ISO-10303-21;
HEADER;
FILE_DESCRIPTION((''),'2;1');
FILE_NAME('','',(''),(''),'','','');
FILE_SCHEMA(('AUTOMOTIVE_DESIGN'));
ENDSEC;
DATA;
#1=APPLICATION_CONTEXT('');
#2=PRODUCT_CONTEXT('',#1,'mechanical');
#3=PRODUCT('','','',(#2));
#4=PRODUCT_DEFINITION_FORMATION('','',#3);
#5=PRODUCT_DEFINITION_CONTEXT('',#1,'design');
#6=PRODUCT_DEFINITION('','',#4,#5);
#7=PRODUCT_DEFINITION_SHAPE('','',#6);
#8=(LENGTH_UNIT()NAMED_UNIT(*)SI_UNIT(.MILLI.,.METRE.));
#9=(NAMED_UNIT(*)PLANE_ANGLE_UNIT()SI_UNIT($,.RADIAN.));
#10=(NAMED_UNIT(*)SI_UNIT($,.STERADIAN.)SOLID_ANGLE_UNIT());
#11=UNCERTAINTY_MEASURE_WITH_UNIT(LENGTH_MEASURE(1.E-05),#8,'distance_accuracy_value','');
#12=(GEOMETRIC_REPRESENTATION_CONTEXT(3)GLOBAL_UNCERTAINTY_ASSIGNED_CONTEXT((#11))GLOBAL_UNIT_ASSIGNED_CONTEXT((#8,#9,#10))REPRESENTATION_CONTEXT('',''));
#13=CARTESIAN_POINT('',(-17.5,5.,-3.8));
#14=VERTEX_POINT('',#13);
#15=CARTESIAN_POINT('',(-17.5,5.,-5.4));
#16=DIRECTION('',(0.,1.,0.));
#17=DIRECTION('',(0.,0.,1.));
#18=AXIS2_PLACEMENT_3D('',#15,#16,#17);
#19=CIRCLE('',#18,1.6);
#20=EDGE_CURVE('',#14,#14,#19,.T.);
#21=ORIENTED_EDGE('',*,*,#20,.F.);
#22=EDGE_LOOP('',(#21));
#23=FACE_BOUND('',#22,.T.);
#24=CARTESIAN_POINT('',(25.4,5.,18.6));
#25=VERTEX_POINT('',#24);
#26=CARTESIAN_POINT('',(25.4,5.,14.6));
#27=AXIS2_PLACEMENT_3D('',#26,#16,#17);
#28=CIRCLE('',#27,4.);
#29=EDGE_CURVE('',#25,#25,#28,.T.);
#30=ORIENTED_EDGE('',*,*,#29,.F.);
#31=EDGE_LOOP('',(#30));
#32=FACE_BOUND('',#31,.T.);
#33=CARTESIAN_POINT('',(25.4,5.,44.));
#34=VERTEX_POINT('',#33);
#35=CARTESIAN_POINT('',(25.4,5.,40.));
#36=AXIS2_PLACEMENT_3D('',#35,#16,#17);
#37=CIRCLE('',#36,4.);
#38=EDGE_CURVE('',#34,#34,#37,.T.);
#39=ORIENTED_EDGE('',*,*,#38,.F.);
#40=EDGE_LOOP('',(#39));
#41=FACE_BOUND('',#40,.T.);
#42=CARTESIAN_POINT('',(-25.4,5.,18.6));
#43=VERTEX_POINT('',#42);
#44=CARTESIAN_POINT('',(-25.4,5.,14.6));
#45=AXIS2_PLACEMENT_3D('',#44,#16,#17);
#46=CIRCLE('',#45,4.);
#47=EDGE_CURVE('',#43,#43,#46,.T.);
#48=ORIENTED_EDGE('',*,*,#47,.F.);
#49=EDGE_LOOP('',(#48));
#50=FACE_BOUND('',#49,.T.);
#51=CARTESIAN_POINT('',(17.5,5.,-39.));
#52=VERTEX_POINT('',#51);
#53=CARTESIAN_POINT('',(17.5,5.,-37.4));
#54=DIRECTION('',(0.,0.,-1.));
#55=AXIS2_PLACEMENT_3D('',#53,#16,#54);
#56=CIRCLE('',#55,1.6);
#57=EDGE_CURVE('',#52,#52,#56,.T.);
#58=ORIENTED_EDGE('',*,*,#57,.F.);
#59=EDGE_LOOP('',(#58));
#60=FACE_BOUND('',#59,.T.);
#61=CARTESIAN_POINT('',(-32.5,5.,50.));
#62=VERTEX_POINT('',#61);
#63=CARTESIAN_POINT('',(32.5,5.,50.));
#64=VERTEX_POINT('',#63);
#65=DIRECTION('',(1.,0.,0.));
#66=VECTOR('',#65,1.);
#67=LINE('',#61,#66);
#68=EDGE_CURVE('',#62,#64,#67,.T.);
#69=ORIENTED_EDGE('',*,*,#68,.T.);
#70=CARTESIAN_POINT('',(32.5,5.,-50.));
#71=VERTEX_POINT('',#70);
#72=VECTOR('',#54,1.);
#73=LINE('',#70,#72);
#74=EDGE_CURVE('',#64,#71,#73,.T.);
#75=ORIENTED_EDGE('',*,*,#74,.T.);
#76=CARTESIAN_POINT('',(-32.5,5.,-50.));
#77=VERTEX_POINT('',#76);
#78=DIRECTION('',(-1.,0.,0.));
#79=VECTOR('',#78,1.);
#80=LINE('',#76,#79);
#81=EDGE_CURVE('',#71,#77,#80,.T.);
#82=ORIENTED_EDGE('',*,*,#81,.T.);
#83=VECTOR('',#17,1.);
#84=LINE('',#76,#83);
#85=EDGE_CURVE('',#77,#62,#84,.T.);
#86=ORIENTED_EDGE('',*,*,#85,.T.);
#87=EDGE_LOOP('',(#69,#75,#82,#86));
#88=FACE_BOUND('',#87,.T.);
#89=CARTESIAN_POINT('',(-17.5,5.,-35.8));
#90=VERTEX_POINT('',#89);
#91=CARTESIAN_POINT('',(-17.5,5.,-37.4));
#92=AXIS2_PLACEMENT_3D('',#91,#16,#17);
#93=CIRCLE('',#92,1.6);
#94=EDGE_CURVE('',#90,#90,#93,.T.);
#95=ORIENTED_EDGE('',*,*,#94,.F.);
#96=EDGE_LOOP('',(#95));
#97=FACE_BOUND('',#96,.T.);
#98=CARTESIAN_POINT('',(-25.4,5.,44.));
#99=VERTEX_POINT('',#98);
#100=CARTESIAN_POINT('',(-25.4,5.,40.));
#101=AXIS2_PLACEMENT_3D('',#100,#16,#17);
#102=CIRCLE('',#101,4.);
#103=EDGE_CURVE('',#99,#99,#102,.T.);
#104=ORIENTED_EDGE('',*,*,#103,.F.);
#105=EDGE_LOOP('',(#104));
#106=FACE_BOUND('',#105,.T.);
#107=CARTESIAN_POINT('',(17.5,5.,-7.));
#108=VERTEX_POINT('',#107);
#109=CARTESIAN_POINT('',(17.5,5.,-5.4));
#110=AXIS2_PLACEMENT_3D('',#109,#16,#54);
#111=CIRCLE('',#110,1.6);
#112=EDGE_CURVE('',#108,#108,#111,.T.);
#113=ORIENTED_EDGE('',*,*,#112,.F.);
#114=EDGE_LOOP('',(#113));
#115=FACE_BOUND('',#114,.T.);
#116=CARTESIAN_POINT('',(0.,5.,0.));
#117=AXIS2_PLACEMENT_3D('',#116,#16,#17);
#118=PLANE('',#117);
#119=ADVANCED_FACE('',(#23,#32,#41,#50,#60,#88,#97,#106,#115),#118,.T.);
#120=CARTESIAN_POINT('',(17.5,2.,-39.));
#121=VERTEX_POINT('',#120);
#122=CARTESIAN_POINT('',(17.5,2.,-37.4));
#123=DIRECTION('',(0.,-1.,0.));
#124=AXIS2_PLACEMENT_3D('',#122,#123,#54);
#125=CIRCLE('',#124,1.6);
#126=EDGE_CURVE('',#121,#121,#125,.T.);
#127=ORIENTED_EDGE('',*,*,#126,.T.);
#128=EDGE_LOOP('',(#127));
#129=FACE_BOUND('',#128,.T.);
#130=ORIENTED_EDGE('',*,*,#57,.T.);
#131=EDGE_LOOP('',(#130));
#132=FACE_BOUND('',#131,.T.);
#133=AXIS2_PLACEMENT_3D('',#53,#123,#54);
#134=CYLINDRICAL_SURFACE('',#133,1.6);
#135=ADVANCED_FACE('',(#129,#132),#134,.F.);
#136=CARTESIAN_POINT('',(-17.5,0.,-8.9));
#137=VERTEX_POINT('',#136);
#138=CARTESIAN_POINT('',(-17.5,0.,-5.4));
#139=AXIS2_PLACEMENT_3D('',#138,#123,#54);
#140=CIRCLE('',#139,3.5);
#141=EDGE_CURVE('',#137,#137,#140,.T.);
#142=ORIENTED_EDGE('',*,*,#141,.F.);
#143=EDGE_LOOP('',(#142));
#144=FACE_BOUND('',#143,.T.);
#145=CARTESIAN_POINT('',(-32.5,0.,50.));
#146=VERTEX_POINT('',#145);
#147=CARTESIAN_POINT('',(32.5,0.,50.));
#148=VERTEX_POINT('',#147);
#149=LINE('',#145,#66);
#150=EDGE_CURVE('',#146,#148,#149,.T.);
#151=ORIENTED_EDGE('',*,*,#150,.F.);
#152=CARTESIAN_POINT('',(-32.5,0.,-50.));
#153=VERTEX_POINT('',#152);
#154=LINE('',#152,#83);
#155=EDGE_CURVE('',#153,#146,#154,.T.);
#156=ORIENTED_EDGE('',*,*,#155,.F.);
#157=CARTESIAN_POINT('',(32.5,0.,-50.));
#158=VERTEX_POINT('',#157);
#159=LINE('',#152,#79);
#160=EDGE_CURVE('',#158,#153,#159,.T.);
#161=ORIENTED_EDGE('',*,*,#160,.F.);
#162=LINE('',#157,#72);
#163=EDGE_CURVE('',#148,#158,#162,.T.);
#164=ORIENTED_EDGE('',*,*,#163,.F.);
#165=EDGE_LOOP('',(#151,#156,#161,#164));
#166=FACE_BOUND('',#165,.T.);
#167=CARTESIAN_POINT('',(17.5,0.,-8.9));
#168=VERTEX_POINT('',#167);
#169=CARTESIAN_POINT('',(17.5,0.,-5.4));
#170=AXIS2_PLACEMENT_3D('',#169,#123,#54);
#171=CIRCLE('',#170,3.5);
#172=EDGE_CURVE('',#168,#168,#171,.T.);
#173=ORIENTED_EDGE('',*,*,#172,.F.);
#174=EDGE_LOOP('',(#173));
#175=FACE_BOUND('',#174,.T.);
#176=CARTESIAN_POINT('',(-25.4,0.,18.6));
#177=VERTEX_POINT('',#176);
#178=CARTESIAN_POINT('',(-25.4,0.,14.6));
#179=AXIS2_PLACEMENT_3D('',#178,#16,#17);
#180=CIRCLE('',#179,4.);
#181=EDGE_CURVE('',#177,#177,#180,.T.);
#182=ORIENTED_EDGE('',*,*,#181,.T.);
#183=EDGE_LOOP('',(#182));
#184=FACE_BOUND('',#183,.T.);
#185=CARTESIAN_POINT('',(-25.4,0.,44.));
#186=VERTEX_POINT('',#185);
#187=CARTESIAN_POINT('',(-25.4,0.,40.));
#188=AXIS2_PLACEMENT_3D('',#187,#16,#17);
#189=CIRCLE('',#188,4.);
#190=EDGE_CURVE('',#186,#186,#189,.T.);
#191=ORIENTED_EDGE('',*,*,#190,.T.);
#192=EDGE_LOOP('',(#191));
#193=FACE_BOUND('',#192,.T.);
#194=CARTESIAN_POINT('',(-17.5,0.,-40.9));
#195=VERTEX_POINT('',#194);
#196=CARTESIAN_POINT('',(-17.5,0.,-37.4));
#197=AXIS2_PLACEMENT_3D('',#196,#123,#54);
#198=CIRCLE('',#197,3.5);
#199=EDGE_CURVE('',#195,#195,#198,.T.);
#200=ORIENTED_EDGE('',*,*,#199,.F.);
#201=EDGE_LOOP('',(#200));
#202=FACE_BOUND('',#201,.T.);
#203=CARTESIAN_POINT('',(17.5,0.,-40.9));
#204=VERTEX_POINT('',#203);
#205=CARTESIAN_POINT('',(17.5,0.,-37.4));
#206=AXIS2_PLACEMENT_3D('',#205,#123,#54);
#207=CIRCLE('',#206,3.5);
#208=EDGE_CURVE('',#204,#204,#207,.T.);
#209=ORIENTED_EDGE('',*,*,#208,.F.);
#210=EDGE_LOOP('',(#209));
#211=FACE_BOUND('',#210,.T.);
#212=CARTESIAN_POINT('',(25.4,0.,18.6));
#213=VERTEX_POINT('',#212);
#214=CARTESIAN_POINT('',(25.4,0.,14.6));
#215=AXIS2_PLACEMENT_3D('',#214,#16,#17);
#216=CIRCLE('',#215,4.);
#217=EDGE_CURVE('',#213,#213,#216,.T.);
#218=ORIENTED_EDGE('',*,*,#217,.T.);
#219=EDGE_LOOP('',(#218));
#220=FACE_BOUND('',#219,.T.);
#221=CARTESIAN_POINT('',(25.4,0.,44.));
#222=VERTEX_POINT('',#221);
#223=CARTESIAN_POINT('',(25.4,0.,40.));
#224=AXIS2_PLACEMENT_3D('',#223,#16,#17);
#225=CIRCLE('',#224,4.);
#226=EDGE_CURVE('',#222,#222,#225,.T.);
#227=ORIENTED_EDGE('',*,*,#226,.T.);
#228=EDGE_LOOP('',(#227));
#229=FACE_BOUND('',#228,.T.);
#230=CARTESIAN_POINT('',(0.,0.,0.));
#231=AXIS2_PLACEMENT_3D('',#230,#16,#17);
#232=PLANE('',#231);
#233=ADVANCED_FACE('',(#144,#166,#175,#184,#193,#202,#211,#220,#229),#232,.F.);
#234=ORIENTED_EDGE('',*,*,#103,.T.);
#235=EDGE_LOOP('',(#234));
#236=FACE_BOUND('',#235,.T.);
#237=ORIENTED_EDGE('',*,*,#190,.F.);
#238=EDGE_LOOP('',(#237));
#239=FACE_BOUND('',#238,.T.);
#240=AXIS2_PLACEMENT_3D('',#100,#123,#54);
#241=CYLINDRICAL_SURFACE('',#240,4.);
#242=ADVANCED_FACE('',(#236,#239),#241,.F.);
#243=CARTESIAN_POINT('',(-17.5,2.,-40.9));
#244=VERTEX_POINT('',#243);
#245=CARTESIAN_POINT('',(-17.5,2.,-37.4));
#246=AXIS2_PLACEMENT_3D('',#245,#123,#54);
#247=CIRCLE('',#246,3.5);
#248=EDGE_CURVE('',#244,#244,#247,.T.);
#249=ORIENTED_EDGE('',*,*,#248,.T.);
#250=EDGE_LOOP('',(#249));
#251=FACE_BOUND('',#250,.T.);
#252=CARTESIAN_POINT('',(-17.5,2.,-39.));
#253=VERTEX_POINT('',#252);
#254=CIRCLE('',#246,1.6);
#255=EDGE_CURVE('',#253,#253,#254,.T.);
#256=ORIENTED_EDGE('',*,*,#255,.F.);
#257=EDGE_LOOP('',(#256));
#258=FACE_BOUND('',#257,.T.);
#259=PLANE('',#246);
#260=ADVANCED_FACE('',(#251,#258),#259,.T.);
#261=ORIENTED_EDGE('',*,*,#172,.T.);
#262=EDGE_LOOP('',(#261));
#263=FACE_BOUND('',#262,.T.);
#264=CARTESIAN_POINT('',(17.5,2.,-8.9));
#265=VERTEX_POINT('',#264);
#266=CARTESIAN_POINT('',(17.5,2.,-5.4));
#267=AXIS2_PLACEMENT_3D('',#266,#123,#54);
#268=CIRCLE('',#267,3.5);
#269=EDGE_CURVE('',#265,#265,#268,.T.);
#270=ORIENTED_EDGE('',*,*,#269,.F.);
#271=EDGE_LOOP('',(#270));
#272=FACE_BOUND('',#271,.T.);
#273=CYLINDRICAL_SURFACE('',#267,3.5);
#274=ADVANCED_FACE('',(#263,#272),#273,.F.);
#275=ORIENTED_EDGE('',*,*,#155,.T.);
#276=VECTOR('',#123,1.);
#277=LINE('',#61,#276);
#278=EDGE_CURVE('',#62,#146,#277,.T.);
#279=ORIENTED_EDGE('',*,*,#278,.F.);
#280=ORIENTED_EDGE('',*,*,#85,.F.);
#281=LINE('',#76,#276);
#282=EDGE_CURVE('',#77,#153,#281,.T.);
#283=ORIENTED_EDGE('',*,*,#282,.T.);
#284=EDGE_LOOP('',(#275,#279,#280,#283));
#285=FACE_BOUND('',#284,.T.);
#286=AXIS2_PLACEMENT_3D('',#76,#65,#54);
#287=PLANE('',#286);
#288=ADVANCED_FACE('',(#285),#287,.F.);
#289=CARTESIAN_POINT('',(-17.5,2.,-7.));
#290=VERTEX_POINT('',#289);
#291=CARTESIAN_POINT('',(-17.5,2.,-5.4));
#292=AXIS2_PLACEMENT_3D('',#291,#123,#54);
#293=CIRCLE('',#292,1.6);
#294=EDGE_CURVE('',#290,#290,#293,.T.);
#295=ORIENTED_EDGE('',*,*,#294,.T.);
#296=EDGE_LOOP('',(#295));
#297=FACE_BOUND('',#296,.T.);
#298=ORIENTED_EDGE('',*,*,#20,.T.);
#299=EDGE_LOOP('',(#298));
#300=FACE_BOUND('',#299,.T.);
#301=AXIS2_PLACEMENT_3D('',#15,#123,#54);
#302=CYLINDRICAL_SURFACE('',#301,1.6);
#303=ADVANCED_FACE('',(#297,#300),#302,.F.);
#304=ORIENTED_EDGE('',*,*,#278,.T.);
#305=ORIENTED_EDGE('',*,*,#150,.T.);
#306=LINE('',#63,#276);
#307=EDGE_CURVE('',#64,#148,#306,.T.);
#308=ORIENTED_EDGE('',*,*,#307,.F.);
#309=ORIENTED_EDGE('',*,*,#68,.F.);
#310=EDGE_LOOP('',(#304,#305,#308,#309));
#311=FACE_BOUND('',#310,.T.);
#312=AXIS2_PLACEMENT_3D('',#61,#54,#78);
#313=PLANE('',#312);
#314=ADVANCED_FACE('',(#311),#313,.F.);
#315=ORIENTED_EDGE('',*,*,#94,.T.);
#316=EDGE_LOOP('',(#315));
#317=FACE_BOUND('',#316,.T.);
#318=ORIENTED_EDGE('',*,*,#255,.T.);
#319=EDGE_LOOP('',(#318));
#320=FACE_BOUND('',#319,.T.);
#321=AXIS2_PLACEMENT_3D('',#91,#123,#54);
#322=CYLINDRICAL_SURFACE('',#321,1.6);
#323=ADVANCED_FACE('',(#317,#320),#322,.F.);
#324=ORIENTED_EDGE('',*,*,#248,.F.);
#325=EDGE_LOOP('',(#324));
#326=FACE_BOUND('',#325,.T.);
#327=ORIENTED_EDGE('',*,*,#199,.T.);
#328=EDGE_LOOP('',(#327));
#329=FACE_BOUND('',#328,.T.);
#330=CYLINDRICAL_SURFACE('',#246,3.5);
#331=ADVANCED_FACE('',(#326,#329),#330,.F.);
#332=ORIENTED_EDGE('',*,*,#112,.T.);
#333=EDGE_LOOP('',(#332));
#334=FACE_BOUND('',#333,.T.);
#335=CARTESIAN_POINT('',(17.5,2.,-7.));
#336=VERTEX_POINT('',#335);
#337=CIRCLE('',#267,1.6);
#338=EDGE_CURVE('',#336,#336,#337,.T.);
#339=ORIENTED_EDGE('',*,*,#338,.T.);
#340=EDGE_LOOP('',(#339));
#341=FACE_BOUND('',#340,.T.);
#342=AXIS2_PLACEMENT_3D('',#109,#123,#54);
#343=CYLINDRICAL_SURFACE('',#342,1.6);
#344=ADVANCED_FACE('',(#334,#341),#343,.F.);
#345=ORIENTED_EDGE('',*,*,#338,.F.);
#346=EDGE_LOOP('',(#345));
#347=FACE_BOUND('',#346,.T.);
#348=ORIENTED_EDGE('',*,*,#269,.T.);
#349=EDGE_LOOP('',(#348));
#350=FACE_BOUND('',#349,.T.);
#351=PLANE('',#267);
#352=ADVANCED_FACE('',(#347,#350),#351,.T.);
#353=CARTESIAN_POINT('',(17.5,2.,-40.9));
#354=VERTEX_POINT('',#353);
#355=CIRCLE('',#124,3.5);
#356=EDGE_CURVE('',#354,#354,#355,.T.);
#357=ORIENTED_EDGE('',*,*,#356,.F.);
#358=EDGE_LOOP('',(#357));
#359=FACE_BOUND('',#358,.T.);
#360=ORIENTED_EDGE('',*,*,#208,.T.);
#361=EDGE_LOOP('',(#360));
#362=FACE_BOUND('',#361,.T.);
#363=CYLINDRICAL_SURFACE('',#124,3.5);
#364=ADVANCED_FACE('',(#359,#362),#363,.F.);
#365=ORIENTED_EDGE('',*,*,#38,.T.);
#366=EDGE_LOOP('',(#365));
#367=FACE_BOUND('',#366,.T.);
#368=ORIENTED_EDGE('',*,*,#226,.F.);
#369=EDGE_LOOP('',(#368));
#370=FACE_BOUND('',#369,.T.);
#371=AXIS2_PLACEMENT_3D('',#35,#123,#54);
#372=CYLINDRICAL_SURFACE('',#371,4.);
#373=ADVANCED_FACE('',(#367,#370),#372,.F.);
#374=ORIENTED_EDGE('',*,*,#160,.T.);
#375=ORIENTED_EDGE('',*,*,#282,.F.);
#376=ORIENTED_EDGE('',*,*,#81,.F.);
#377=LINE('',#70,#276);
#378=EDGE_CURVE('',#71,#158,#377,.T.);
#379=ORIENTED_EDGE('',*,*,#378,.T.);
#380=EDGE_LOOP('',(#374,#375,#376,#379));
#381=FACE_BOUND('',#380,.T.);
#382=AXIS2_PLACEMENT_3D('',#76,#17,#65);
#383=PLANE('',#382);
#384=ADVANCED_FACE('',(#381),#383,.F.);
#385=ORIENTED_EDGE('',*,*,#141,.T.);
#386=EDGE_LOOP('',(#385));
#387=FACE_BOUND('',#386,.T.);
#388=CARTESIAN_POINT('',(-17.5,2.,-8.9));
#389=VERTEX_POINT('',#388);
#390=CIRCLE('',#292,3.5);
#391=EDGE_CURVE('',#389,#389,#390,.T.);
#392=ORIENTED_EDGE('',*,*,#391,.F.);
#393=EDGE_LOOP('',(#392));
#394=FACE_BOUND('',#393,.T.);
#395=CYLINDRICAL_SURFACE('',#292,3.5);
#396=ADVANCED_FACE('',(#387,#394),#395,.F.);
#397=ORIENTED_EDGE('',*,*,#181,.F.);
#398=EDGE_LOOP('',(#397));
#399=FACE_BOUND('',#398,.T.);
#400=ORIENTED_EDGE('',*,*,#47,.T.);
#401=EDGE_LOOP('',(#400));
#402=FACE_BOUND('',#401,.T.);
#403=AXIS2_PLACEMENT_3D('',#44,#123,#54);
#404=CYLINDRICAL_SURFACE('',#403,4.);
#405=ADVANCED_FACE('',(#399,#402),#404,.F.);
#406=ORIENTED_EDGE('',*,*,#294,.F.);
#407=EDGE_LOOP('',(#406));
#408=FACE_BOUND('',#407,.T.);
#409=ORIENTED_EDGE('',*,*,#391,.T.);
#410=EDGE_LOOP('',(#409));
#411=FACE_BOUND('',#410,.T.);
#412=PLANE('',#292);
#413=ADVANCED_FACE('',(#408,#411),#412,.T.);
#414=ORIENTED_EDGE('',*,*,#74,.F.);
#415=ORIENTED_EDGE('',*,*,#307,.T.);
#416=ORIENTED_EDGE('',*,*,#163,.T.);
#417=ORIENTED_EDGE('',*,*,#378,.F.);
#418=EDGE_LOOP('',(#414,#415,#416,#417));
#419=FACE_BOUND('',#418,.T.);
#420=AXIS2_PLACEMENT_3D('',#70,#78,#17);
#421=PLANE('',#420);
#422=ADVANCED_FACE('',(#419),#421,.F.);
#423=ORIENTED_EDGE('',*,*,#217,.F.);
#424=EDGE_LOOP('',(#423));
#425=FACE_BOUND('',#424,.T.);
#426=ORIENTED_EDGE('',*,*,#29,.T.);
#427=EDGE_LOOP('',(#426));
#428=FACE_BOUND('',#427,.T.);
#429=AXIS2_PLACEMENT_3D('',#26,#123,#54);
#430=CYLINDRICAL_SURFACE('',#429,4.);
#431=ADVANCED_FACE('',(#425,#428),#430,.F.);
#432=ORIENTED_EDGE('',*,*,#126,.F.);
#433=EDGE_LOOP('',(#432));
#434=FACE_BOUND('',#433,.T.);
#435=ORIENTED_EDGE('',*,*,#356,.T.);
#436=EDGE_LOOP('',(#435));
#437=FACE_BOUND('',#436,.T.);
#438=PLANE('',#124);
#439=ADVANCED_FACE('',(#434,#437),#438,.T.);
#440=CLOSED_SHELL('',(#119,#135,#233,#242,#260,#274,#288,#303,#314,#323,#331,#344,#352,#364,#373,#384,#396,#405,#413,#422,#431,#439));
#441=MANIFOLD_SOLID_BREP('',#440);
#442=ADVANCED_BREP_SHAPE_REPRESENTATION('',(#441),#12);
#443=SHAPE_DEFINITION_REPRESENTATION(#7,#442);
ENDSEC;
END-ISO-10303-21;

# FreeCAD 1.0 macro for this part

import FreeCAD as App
import Part
import Sketcher

doc = App.newDocument("Part")
body = doc.addObject("PartDesign::Body", "Body")

# Sketch on XZ plane
sketch1 = doc.addObject("Sketcher::SketchObject", "Sketch")
body.addObject(sketch1)
sketch1.AttachmentSupport = (doc.XZ_Plane, [""])
sketch1.MapMode = "FlatFace"
sketch1.addGeometry([
    Part.LineSegment(App.Vector(-32.5, -50, 0), App.Vector(-32.5, 50, 0)),  # 0
    Part.LineSegment(App.Vector(-32.5, 50, 0), App.Vector(32.5, 50, 0)),  # 1
    Part.LineSegment(App.Vector(32.5, 50, 0), App.Vector(32.5, -50, 0)),  # 2
    Part.LineSegment(App.Vector(32.5, -50, 0), App.Vector(-32.5, -50, 0)),  # 3
    Part.Circle(App.Vector(-25.4, 40, 0), App.Vector(0, 0, 1), 4),  # 4
    Part.Circle(App.Vector(-25.4, 14.6, 0), App.Vector(0, 0, 1), 4),  # 5
    Part.Circle(App.Vector(25.4, 40, 0), App.Vector(0, 0, 1), 4),  # 6
    Part.Circle(App.Vector(25.4, 14.6, 0), App.Vector(0, 0, 1), 4),  # 7
    Part.Circle(App.Vector(-17.5, -5.4, 0), App.Vector(0, 0, 1), 1.6),  # 8
    Part.Circle(App.Vector(-17.5, -37.4, 0), App.Vector(0, 0, 1), 1.6),  # 9
    Part.Circle(App.Vector(17.5, -5.4, 0), App.Vector(0, 0, 1), 1.6),  # 10
    Part.Circle(App.Vector(17.5, -37.4, 0), App.Vector(0, 0, 1), 1.6),  # 11
], False)
sketch1.addConstraint([
    Sketcher.Constraint("Coincident", 0, 2, 1, 1),
    Sketcher.Constraint("Coincident", 1, 2, 2, 1),
    Sketcher.Constraint("Coincident", 2, 2, 3, 1),
    Sketcher.Constraint("Coincident", 3, 2, 0, 1),
    Sketcher.Constraint("Vertical", 0),
    Sketcher.Constraint("Horizontal", 1),
    Sketcher.Constraint("Vertical", 2),
    Sketcher.Constraint("Horizontal", 3),
    Sketcher.Constraint("Equal", 4, 5),
    Sketcher.Constraint("Equal", 5, 6),
    Sketcher.Constraint("Equal", 6, 7),
    Sketcher.Constraint("Equal", 8, 9),
    Sketcher.Constraint("Equal", 9, 10),
    Sketcher.Constraint("Equal", 10, 11),
    Sketcher.Constraint("Symmetric", 0, 2, 2, 2, -1, 1),
    Sketcher.Constraint("Symmetric", 4, 3, 6, 3, -2),
    Sketcher.Constraint("Symmetric", 5, 3, 7, 3, -2),
    Sketcher.Constraint("Symmetric", 8, 3, 10, 3, -2),
    Sketcher.Constraint("Symmetric", 9, 3, 11, 3, -2),
    Sketcher.Constraint("Vertical", 4, 3, 5, 3),
    Sketcher.Constraint("Vertical", 8, 3, 9, 3),
    Sketcher.Constraint("Diameter", 4, 8.0),
    Sketcher.Constraint("Diameter", 8, 3.2),
    Sketcher.Constraint("DistanceX", 1, 1, 1, 2, 65.0),
    Sketcher.Constraint("DistanceY", 0, 1, 0, 2, 100.0),
    Sketcher.Constraint("DistanceY", -1, 1, 4, 3, 40.0),
    Sketcher.Constraint("DistanceY", 8, 3, 5, 3, 20.0),
    Sketcher.Constraint("DistanceY", 9, 3, 8, 3, 32.0),
    Sketcher.Constraint("DistanceX", 8, 3, 10, 3, 35.0),
    Sketcher.Constraint("DistanceX", 4, 3, -1, 1, 25.4),
    Sketcher.Constraint("DistanceY", -1, 1, 5, 3, 14.6),
])
pad1 = doc.addObject("PartDesign::Pad", "Pad")
body.addObject(pad1)
pad1.Profile = sketch1
pad1.Length = 5
pad1.Reversed = True

# Sketch on XZ plane
sketch2 = doc.addObject("Sketcher::SketchObject", "Sketch001")
body.addObject(sketch2)
sketch2.AttachmentSupport = (doc.XZ_Plane, [""])
sketch2.MapMode = "FlatFace"
sketch2.addGeometry([
    Part.Circle(App.Vector(-17.5, -5.4, 0), App.Vector(0, 0, 1), 3.5),
    Part.Circle(App.Vector(17.5, -5.4, 0), App.Vector(0, 0, 1), 3.5),
    Part.Circle(App.Vector(-17.5, -37.4, 0), App.Vector(0, 0, 1), 3.5),
    Part.Circle(App.Vector(17.5, -37.4, 0), App.Vector(0, 0, 1), 3.5),
], False)
sketch2.addConstraint([
    Sketcher.Constraint("Equal", 0, 1),
    Sketcher.Constraint("Equal", 1, 2),
    Sketcher.Constraint("Equal", 2, 3),
    Sketcher.Constraint("Symmetric", 0, 3, 1, 3, -2),
    Sketcher.Constraint("Symmetric", 2, 3, 3, 3, -2),
    Sketcher.Constraint("Vertical", 0, 3, 2, 3),
    Sketcher.Constraint("Diameter", 0, 7.0),
    Sketcher.Constraint("DistanceX", 0, 3, 1, 3, 35.0),
    Sketcher.Constraint("DistanceY", 2, 3, 0, 3, 32.0),
    Sketcher.Constraint("DistanceY", 0, 3, -1, 1, 5.4),
])
pocket1 = doc.addObject("PartDesign::Pocket", "Pocket")
body.addObject(pocket1)
pocket1.Profile = sketch2
pocket1.Length = 2

doc.recompute()
